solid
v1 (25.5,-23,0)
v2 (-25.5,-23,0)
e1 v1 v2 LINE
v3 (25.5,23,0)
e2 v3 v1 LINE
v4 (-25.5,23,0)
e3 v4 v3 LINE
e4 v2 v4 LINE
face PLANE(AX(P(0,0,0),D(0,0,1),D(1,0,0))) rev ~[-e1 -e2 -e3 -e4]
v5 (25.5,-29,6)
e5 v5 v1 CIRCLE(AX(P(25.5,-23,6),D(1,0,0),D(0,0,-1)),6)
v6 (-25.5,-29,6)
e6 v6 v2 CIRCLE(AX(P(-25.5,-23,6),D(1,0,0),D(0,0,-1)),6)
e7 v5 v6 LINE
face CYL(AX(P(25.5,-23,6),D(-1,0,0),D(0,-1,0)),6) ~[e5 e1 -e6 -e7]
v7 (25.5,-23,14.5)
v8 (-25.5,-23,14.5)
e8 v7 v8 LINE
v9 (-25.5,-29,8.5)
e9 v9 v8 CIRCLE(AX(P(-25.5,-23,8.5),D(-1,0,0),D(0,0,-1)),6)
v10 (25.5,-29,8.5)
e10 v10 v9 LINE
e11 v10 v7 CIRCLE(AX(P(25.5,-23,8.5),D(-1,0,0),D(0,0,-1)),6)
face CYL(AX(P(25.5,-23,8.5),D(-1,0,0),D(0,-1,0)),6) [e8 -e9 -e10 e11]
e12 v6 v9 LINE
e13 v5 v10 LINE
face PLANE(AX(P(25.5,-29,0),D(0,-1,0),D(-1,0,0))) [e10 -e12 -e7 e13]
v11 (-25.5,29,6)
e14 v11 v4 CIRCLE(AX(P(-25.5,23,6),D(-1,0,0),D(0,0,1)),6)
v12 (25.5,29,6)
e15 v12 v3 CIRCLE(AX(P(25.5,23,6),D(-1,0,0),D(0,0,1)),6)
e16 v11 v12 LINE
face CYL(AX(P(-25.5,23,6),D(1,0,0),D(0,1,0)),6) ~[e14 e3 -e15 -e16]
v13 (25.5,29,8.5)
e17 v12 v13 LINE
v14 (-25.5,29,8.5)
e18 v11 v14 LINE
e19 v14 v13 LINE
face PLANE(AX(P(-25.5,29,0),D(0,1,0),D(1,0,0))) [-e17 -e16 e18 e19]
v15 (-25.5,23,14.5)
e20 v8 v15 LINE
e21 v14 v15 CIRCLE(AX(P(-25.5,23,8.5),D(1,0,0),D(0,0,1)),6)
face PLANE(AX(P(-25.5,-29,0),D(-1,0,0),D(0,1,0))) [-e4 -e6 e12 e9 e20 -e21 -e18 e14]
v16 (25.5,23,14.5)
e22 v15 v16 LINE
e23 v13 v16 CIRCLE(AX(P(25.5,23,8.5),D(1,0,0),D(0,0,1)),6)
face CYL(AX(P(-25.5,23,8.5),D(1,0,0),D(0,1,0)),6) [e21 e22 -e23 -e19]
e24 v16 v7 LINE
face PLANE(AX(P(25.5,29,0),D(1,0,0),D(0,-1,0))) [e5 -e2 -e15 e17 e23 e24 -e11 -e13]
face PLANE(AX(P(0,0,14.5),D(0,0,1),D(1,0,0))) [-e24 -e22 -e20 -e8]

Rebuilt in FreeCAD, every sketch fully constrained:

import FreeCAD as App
import Part
import Sketcher
from FreeCAD import Vector


def edges_at(feature, points):
    """Names of the edges that pass closest to the given points."""
    edges = feature.Shape.Edges
    near = lambda p: min(range(len(edges)), key=lambda i: edges[i].distToShape(Part.Vertex(*p))[0])
    return sorted({f"Edge{near(p) + 1}" for p in points})


def add_polygon(sketch, points):
    """Adds a closed chain of lines whose ends are joined by coincident constraints."""
    first, n = sketch.GeometryCount, len(points)
    for a, b in zip(points, points[1:] + points[:1]):
        sketch.addGeometry(Part.LineSegment(App.Vector(*a, 0), App.Vector(*b, 0)), False)
    for i in range(n):
        sketch.addConstraint(Sketcher.Constraint("Coincident", first + i, 2, first + (i + 1) % n, 1))

doc = App.newDocument("Part")
body = doc.addObject("PartDesign::Body", "Body")

sketch1 = body.newObject("Sketcher::SketchObject", "Sketch")
sketch1.AttachmentSupport = (doc.getObject("XY_Plane"), [""])
sketch1.MapMode = "FlatFace"
add_polygon(sketch1, [(25.5, 29), (-25.5, 29), (-25.5, -29), (25.5, -29)])
sketch1.addConstraint(Sketcher.Constraint("Horizontal", 0))
sketch1.addConstraint(Sketcher.Constraint("Vertical", 1))
sketch1.addConstraint(Sketcher.Constraint("Horizontal", 2))
sketch1.addConstraint(Sketcher.Constraint("Vertical", 3))
sketch1.addConstraint(Sketcher.Constraint("Symmetric", 0, 2, 2, 2, -1, 1))
sketch1.addConstraint(Sketcher.Constraint("DistanceX", 0, 2, 0, 1, 51.0))
sketch1.addConstraint(Sketcher.Constraint("DistanceY", 1, 2, 1, 1, 58.0))
pad1 = body.newObject("PartDesign::Pad", "Pad")
pad1.Profile = sketch1
pad1.Length = 14.5
doc.recompute()

fillet = body.newObject("PartDesign::Fillet", "Fillet")
fillet.Base = (pad1, edges_at(pad1, [
    (0, 29, 14.5),
    (0, 29, 0),
    (0, -29, 14.5),
    (0, -29, 0),
]))
fillet.Radius = 6

doc.recompute()
